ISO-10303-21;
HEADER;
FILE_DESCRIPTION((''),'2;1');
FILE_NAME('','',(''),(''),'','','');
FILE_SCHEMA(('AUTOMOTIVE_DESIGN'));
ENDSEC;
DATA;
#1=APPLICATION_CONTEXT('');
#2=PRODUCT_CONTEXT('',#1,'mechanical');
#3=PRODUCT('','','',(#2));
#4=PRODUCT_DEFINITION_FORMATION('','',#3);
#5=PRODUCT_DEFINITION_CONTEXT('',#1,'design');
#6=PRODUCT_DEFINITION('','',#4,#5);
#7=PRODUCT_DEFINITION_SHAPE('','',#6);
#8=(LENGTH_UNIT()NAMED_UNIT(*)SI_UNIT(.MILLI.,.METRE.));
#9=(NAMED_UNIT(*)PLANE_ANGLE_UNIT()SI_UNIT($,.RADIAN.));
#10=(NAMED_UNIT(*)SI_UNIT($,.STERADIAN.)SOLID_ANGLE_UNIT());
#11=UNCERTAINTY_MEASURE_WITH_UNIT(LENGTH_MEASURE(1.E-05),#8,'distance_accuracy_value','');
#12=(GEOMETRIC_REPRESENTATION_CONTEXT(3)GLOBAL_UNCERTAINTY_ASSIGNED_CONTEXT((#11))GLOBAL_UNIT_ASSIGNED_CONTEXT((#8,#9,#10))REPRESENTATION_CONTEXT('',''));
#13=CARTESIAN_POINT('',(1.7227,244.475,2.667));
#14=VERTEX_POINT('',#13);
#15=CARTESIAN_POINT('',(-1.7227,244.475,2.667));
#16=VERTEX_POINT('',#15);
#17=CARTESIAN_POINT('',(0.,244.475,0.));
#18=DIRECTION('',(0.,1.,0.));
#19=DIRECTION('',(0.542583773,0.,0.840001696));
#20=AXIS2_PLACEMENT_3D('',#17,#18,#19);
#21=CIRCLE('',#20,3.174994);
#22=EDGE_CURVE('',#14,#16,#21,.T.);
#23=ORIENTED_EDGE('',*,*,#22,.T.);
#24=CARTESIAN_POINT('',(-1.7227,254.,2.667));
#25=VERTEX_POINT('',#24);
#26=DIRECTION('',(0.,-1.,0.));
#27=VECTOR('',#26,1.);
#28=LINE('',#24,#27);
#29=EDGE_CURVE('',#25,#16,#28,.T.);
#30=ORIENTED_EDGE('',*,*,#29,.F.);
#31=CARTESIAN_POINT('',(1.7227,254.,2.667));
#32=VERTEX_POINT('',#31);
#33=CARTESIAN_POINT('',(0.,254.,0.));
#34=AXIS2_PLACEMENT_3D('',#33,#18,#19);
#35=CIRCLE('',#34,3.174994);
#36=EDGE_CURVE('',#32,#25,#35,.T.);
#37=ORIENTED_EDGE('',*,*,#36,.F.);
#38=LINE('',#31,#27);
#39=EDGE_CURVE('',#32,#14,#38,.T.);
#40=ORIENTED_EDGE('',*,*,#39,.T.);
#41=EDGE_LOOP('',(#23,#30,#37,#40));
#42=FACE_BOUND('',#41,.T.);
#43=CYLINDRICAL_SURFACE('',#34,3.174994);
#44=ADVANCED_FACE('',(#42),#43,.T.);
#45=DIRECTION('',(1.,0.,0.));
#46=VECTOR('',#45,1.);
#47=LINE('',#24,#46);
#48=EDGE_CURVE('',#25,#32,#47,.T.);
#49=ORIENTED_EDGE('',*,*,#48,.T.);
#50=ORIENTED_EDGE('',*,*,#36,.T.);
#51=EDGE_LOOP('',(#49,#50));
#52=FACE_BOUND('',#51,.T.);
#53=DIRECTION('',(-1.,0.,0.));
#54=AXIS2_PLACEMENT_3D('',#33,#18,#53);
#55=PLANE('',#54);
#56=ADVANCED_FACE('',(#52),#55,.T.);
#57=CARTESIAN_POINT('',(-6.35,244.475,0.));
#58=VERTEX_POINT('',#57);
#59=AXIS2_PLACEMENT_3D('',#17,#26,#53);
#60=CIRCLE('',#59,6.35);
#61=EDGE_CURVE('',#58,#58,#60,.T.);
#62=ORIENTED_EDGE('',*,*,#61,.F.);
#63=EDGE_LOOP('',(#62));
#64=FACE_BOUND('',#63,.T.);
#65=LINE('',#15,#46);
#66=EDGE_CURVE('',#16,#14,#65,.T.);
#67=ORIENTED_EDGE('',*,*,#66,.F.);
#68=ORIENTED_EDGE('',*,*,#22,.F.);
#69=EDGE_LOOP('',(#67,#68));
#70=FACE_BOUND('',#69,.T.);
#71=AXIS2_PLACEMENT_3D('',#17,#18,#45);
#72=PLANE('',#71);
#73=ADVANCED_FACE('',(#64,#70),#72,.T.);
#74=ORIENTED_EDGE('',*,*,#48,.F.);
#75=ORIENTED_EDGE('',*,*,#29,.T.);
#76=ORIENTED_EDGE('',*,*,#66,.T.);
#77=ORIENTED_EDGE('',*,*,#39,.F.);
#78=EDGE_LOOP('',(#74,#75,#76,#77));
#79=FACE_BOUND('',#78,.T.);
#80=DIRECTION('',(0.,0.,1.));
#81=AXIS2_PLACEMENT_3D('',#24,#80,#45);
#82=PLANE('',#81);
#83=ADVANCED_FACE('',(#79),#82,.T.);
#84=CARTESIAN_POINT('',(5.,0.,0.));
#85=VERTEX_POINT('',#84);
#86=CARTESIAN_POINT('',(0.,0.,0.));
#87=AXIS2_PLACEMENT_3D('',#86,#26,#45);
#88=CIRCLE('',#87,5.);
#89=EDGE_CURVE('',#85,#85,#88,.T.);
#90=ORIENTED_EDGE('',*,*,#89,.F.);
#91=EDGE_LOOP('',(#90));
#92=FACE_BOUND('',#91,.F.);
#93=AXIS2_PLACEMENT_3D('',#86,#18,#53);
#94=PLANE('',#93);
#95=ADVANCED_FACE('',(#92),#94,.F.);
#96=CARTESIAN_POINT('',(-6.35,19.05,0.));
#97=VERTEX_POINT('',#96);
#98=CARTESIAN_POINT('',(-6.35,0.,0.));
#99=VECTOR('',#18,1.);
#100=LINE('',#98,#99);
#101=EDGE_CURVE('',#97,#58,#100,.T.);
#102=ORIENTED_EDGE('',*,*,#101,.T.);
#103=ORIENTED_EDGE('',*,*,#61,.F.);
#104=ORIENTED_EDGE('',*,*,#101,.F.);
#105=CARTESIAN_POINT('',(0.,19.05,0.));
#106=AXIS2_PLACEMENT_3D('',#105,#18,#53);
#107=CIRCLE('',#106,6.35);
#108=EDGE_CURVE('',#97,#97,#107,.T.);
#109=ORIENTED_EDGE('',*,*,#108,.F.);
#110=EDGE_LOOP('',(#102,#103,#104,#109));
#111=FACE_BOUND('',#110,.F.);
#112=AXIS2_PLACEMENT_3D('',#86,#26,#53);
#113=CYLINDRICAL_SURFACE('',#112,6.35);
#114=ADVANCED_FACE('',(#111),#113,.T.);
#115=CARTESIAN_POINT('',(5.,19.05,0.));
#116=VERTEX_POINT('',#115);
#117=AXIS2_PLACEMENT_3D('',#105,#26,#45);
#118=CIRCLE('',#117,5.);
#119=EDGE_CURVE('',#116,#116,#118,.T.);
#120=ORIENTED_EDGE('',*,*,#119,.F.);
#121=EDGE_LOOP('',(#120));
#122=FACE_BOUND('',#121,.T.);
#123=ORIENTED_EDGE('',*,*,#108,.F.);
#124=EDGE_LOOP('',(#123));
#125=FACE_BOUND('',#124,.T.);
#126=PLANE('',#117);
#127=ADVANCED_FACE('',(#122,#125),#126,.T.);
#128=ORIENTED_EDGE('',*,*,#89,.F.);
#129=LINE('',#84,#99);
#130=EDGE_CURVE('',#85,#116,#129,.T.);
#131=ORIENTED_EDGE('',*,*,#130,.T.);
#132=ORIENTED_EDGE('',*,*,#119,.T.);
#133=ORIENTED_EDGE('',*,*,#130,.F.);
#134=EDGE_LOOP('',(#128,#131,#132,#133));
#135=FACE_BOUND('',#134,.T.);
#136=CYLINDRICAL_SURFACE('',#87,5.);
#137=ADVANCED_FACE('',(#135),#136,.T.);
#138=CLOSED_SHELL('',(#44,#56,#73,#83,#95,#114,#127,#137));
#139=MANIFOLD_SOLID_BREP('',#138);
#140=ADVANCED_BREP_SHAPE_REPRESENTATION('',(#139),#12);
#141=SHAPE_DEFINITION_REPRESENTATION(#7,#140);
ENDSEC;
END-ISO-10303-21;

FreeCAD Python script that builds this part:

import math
import FreeCAD as App
import Part
import Sketcher

V = App.Vector
Q = App.Units.Quantity

doc = App.newDocument("Part")
body = doc.addObject("PartDesign::Body", "Body")

# Sketch on XZ plane
sketch1 = body.newObject("Sketcher::SketchObject", "Sketch")
sketch1.AttachmentSupport = (doc.getObject("XZ_Plane"), [""])
sketch1.MapMode = "FlatFace"
sketch1.addGeometry(Part.Circle(V(0, 0, 0), V(0, 0, 1), 6), False)
sketch1.addConstraint(Sketcher.Constraint("Coincident", 0, 3, -1, 1))
sketch1.addConstraint(Sketcher.Constraint("Diameter", 0, Q("0.5 in")))
pad1 = body.newObject("PartDesign::Pad", "Pad")
pad1.Profile = sketch1
pad1.Length = Q("10 in")
pad1.Reversed = True

# Sketch on XZ plane
sketch2 = body.newObject("Sketcher::SketchObject", "Sketch001")
sketch2.AttachmentSupport = (doc.getObject("XZ_Plane"), [""])
sketch2.MapMode = "FlatFace"
sketch2.AttachmentOffset = App.Placement(V(0, 0, -10 * 25.4), App.Rotation())
sketch2.addGeometry(Part.Circle(V(0, 0, 0), V(0, 0, 1), 6.3), False)
sketch2.addGeometry(Part.ArcOfCircle(Part.Circle(V(0, 0, 0), V(0, 0, 1), 3.2), math.radians(123), math.radians(417)), False)
sketch2.addGeometry(Part.LineSegment(V(1.7, 2.7, 0), V(-1.7, 2.7, 0)), False)
sketch2.addConstraint(Sketcher.Constraint("Coincident", 1, 1, 2, 2))
sketch2.addConstraint(Sketcher.Constraint("Coincident", 2, 1, 1, 2))
sketch2.addConstraint(Sketcher.Constraint("Horizontal", 2))
sketch2.addConstraint(Sketcher.Constraint("Coincident", 0, 3, -1, 1))
sketch2.addConstraint(Sketcher.Constraint("Coincident", 1, 3, -1, 1))
sketch2.addConstraint(Sketcher.Constraint("Diameter", 0, Q("0.5 in")))
sketch2.addConstraint(Sketcher.Constraint("Radius", 1, Q("0.125 in")))
sketch2.addConstraint(Sketcher.Constraint("DistanceY", -1, 1, 1, 1, Q("0.105 in")))
pocket1 = body.newObject("PartDesign::Pocket", "Pocket")
pocket1.Profile = sketch2
pocket1.Length = Q("0.375 in")
pocket1.Reversed = True

# Sketch on XZ plane
sketch3 = body.newObject("Sketcher::SketchObject", "Sketch002")
sketch3.AttachmentSupport = (doc.getObject("XZ_Plane"), [""])
sketch3.MapMode = "FlatFace"
sketch3.addGeometry(Part.Circle(V(0, 0, 0), V(0, 0, 1), 6), False)
sketch3.addGeometry(Part.Circle(V(0, 0, 0), V(0, 0, 1), 5), False)
sketch3.addConstraint(Sketcher.Constraint("Coincident", 0, 3, -1, 1))
sketch3.addConstraint(Sketcher.Constraint("Coincident", 1, 3, -1, 1))
sketch3.addConstraint(Sketcher.Constraint("Diameter", 0, Q("0.5 in")))
sketch3.addConstraint(Sketcher.Constraint("Diameter", 1, Q("0.3937 in")))
pocket2 = body.newObject("PartDesign::Pocket", "Pocket001")
pocket2.Profile = sketch3
pocket2.Length = Q("0.75 in")

doc.recompute()
